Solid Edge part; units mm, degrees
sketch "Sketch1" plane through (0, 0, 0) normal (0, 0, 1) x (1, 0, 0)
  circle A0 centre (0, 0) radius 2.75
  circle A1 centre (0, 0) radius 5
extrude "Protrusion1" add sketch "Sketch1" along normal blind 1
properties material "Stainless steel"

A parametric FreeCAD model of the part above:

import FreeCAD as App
import Part
import Sketcher

doc = App.newDocument("Part")
body = doc.addObject("PartDesign::Body", "Body")

# Sketch on XY plane
sketch1 = doc.addObject("Sketcher::SketchObject", "Sketch")
body.addObject(sketch1)
sketch1.AttachmentSupport = (doc.XY_Plane, [""])
sketch1.MapMode = "FlatFace"
sketch1.addGeometry(Part.Circle(App.Vector(0, 0, 0), App.Vector(0, 0, 1), 5), False)
sketch1.addGeometry(Part.Circle(App.Vector(0, 0, 0), App.Vector(0, 0, 1), 2.8), False)
sketch1.addConstraint(Sketcher.Constraint("Coincident", 0, 3, -1, 1))
sketch1.addConstraint(Sketcher.Constraint("Coincident", 1, 3, -1, 1))
sketch1.addConstraint(Sketcher.Constraint("Diameter", 0, 10.0))
sketch1.addConstraint(Sketcher.Constraint("Diameter", 1, 5.5))
pad1 = doc.addObject("PartDesign::Pad", "Pad")
body.addObject(pad1)
pad1.Profile = sketch1
pad1.Length = 1

doc.recompute()
